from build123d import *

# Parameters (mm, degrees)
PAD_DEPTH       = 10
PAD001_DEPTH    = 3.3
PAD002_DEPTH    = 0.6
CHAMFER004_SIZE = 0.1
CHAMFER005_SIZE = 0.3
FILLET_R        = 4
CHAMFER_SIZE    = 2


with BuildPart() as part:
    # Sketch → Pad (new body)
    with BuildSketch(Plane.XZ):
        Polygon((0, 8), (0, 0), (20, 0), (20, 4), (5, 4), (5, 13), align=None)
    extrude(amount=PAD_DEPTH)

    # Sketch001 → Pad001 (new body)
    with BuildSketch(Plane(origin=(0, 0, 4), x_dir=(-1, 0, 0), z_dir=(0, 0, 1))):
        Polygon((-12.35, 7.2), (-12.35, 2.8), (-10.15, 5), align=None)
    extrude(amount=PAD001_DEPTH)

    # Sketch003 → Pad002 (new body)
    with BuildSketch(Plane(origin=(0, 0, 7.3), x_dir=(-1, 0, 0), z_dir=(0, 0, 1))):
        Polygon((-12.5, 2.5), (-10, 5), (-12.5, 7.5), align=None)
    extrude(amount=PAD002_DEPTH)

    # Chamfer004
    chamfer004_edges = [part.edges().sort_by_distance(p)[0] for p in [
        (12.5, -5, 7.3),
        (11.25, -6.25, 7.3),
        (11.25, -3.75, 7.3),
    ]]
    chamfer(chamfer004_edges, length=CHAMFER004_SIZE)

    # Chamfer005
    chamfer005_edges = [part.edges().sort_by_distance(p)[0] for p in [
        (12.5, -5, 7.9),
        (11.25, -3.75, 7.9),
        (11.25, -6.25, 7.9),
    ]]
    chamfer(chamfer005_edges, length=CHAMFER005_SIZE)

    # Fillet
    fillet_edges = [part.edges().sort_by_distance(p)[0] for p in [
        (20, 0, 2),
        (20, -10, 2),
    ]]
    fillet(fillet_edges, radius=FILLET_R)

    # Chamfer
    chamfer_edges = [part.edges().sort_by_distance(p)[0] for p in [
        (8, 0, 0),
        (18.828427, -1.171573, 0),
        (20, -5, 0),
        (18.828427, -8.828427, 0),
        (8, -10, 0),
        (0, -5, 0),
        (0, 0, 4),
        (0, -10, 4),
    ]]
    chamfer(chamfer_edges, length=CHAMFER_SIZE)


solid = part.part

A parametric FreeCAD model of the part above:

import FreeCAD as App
import Part
import Sketcher
from FreeCAD import Vector


def edges_at(feature, points):
    """Names of the edges that pass closest to the given points."""
    edges = feature.Shape.Edges
    near = lambda p: min(range(len(edges)), key=lambda i: edges[i].distToShape(Part.Vertex(*p))[0])
    return sorted({f"Edge{near(p) + 1}" for p in points})


def add_polygon(sketch, points):
    """Adds a closed chain of lines whose ends are joined by coincident constraints."""
    first, n = sketch.GeometryCount, len(points)
    for a, b in zip(points, points[1:] + points[:1]):
        sketch.addGeometry(Part.LineSegment(App.Vector(*a, 0), App.Vector(*b, 0)), False)
    for i in range(n):
        sketch.addConstraint(Sketcher.Constraint("Coincident", first + i, 2, first + (i + 1) % n, 1))

doc = App.newDocument("Part")
body = doc.addObject("PartDesign::Body", "Body")

sketch1 = body.newObject("Sketcher::SketchObject", "Sketch")
sketch1.AttachmentSupport = (doc.getObject("XZ_Plane"), [""])
sketch1.MapMode = "FlatFace"
add_polygon(sketch1, [(0, 8), (0, 0), (20, 0), (20, 4), (5, 4), (5, 13)])
sketch1.addConstraint(Sketcher.Constraint("Vertical", 0))
sketch1.addConstraint(Sketcher.Constraint("Horizontal", 1))
sketch1.addConstraint(Sketcher.Constraint("Vertical", 2))
sketch1.addConstraint(Sketcher.Constraint("Horizontal", 3))
sketch1.addConstraint(Sketcher.Constraint("Vertical", 4))
sketch1.addConstraint(Sketcher.Constraint("Coincident", 0, 2, -1, 1))
sketch1.addConstraint(Sketcher.Constraint("DistanceX", 1, 1, 1, 2, 20.0))
sketch1.addConstraint(Sketcher.Constraint("DistanceX", 3, 2, 3, 1, 15.0))
sketch1.addConstraint(Sketcher.Constraint("DistanceY", 0, 2, 0, 1, 8.0))
sketch1.addConstraint(Sketcher.Constraint("DistanceY", 2, 1, 2, 2, 4.0))
sketch1.addConstraint(Sketcher.Constraint("DistanceY", 4, 1, 4, 2, 9.0))
pad1 = body.newObject("PartDesign::Pad", "Pad")
pad1.Profile = sketch1
pad1.Length = 10

sketch2 = body.newObject("Sketcher::SketchObject", "Sketch001")
sketch2.AttachmentSupport = (doc.getObject("XY_Plane"), [""])
sketch2.MapMode = "FlatFace"
sketch2.AttachmentOffset = App.Placement(Vector(0, 0, 4), App.Rotation())
add_polygon(sketch2, [(12.3, -7.2), (12.3, -2.8), (10.2, -5)])
sketch2.addConstraint(Sketcher.Constraint("Vertical", 0))
sketch2.addConstraint(Sketcher.Constraint("Perpendicular", 1, 2))
sketch2.addConstraint(Sketcher.Constraint("Equal", 1, 2))
sketch2.addConstraint(Sketcher.Constraint("DistanceY", 0, 1, 0, 2, 4.4))
sketch2.addConstraint(Sketcher.Constraint("DistanceY", 1, 2, -1, 1, 5.0))
sketch2.addConstraint(Sketcher.Constraint("DistanceX", -1, 1, 0, 2, 12.35))
pad2 = body.newObject("PartDesign::Pad", "Pad001")
pad2.Profile = sketch2
pad2.Length = 3.3

sketch3 = body.newObject("Sketcher::SketchObject", "Sketch002")
sketch3.AttachmentSupport = (doc.getObject("XY_Plane"), [""])
sketch3.MapMode = "FlatFace"
sketch3.AttachmentOffset = App.Placement(Vector(0, 0, 7.3), App.Rotation())
add_polygon(sketch3, [(12.5, -2.5), (10, -5), (12.5, -7.5)])
sketch3.addConstraint(Sketcher.Constraint("Vertical", 2))
sketch3.addConstraint(Sketcher.Constraint("Perpendicular", 0, 1))
sketch3.addConstraint(Sketcher.Constraint("Equal", 0, 1))
sketch3.addConstraint(Sketcher.Constraint("DistanceY", 2, 1, 2, 2, 5.0))
sketch3.addConstraint(Sketcher.Constraint("DistanceX", -1, 1, 0, 2, 10.0))
sketch3.addConstraint(Sketcher.Constraint("DistanceY", 0, 2, -1, 1, 5.0))
pad3 = body.newObject("PartDesign::Pad", "Pad002")
pad3.Profile = sketch3
pad3.Length = 0.6
doc.recompute()

chamfer = body.newObject("PartDesign::Chamfer", "Chamfer")
chamfer.Base = (pad3, edges_at(pad3, [(12.5, -5, 7.3), (11.25, -6.25, 7.3), (11.25, -3.75, 7.3)]))
chamfer.Size = 0.1
doc.recompute()

chamfer2 = body.newObject("PartDesign::Chamfer", "Chamfer001")
chamfer2.Base = (chamfer, edges_at(chamfer, [(12.5, -5, 7.9), (11.25, -3.75, 7.9), (11.25, -6.25, 7.9)]))
chamfer2.Size = 0.3
doc.recompute()

fillet = body.newObject("PartDesign::Fillet", "Fillet")
fillet.Base = (chamfer2, edges_at(chamfer2, [(20, 0, 2), (20, -10, 2)]))
fillet.Radius = 4
doc.recompute()

chamfer3 = body.newObject("PartDesign::Chamfer", "Chamfer002")
chamfer3.Base = (fillet, edges_at(fillet, [
    (8, 0, 0),
    (18.828, -1.172, 0),
    (20, -5, 0),
    (18.828, -8.828, 0),
    (8, -10, 0),
    (0, -5, 0),
    (0, 0, 4),
    (0, -10, 4),
]))
chamfer3.Size = 2

doc.recompute()
